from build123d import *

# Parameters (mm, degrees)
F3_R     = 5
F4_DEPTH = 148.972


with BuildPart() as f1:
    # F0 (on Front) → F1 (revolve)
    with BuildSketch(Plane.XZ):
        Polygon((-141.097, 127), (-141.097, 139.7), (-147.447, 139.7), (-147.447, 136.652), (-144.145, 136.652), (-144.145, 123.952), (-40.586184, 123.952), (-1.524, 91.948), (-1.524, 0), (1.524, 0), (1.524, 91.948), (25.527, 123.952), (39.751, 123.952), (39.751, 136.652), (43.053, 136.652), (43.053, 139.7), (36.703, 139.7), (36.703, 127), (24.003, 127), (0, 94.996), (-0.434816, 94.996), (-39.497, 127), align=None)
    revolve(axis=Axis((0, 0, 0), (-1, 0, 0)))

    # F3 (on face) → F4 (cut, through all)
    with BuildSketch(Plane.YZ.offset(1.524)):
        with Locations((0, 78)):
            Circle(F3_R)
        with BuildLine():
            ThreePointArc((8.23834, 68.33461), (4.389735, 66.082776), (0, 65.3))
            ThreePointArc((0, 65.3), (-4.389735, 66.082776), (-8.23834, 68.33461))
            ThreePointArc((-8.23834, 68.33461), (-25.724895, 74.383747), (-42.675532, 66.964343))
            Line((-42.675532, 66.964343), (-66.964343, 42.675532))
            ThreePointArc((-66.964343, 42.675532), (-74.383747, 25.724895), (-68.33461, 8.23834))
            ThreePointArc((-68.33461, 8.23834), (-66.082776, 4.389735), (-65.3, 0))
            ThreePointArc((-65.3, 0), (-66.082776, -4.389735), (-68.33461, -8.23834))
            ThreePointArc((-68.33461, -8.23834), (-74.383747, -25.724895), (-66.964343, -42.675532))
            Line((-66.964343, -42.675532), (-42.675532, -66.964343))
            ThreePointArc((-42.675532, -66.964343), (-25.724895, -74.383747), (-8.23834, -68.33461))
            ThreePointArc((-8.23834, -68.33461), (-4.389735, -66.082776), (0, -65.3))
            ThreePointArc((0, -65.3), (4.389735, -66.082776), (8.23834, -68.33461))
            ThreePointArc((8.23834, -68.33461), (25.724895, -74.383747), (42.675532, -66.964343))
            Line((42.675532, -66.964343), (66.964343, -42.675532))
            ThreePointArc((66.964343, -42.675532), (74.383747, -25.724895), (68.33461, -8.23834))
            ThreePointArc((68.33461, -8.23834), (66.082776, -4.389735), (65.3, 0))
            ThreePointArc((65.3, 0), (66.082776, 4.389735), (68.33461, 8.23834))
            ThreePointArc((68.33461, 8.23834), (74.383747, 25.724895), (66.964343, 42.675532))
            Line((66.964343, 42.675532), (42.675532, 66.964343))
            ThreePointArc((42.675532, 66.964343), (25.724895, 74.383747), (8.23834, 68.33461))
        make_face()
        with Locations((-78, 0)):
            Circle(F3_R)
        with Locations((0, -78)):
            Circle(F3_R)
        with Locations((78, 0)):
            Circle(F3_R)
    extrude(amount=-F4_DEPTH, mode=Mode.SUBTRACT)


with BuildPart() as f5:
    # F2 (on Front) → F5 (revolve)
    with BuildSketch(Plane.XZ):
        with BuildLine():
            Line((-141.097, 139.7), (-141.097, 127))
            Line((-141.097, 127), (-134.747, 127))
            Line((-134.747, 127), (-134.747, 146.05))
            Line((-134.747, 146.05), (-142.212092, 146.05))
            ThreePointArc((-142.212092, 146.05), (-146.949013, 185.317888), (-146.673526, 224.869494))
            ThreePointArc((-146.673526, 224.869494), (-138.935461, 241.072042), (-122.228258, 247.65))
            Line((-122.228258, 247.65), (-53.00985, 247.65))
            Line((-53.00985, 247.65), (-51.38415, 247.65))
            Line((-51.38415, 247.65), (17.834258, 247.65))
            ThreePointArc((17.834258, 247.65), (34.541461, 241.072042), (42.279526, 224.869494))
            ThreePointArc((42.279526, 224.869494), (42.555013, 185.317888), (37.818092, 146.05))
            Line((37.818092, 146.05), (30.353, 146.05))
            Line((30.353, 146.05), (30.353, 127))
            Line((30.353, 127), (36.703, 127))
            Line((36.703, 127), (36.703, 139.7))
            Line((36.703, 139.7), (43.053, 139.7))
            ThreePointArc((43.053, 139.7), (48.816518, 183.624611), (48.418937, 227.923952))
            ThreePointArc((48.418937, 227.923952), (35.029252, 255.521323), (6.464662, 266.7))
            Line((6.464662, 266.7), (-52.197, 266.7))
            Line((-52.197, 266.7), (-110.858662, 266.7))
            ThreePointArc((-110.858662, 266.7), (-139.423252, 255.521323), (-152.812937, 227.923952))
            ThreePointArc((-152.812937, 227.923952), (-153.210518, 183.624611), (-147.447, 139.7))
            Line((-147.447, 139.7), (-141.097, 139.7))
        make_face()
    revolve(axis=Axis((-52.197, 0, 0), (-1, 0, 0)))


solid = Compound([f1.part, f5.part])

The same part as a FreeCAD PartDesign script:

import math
import FreeCAD as App
import Part
import Sketcher

V = App.Vector
Q = App.Units.Quantity

doc = App.newDocument("Part")
body = doc.addObject("PartDesign::Body", "Body")

# Sketch on XZ plane
sketch1 = doc.addObject("Sketcher::SketchObject", "Sketch")
body.addObject(sketch1)
sketch1.AttachmentSupport = (doc.XZ_Plane, [""])
sketch1.MapMode = "FlatFace"
sketch1.addGeometry([
    Part.LineSegment(V(-141.1, 127, 0), V(-141.1, 139.7, 0)),  # 0
    Part.LineSegment(V(-141.1, 139.7, 0), V(-147.45, 139.7, 0)),  # 1
    Part.LineSegment(V(-147.45, 139.7, 0), V(-147.45, 136.65, 0)),  # 2
    Part.LineSegment(V(-147.45, 136.65, 0), V(-144.15, 136.65, 0)),  # 3
    Part.LineSegment(V(-144.15, 136.65, 0), V(-144.15, 123.95, 0)),  # 4
    Part.LineSegment(V(-144.15, 123.95, 0), V(-40.59, 123.95, 0)),  # 5
    Part.LineSegment(V(-40.59, 123.95, 0), V(-1.52, 91.95, 0)),  # 6
    Part.LineSegment(V(-1.52, 91.95, 0), V(-1.52, 0, 0)),  # 7
    Part.LineSegment(V(-1.52, 0, 0), V(1.52, 0, 0)),  # 8
    Part.LineSegment(V(1.52, 0, 0), V(1.52, 91.95, 0)),  # 9
    Part.LineSegment(V(1.52, 91.95, 0), V(25.53, 123.95, 0)),  # 10
    Part.LineSegment(V(25.53, 123.95, 0), V(39.75, 123.95, 0)),  # 11
    Part.LineSegment(V(39.75, 123.95, 0), V(39.75, 136.65, 0)),  # 12
    Part.LineSegment(V(39.75, 136.65, 0), V(43.05, 136.65, 0)),  # 13
    Part.LineSegment(V(43.05, 136.65, 0), V(43.05, 139.7, 0)),  # 14
    Part.LineSegment(V(43.05, 139.7, 0), V(36.7, 139.7, 0)),  # 15
    Part.LineSegment(V(36.7, 139.7, 0), V(36.7, 127, 0)),  # 16
    Part.LineSegment(V(36.7, 127, 0), V(24, 127, 0)),  # 17
    Part.LineSegment(V(24, 127, 0), V(0, 95, 0)),  # 18
    Part.LineSegment(V(0, 95, 0), V(-0.43, 95, 0)),  # 19
    Part.LineSegment(V(-0.43, 95, 0), V(-39.5, 127, 0)),  # 20
    Part.LineSegment(V(-39.5, 127, 0), V(-141.1, 127, 0)),  # 21
], False)
sketch1.addConstraint([
    Sketcher.Constraint("Coincident", 0, 2, 1, 1),
    Sketcher.Constraint("Coincident", 1, 2, 2, 1),
    Sketcher.Constraint("Coincident", 2, 2, 3, 1),
    Sketcher.Constraint("Coincident", 3, 2, 4, 1),
    Sketcher.Constraint("Coincident", 4, 2, 5, 1),
    Sketcher.Constraint("Coincident", 5, 2, 6, 1),
    Sketcher.Constraint("Coincident", 6, 2, 7, 1),
    Sketcher.Constraint("Coincident", 7, 2, 8, 1),
    Sketcher.Constraint("Coincident", 8, 2, 9, 1),
    Sketcher.Constraint("Coincident", 9, 2, 10, 1),
    Sketcher.Constraint("Coincident", 10, 2, 11, 1),
    Sketcher.Constraint("Coincident", 11, 2, 12, 1),
    Sketcher.Constraint("Coincident", 12, 2, 13, 1),
    Sketcher.Constraint("Coincident", 13, 2, 14, 1),
    Sketcher.Constraint("Coincident", 14, 2, 15, 1),
    Sketcher.Constraint("Coincident", 15, 2, 16, 1),
    Sketcher.Constraint("Coincident", 16, 2, 17, 1),
    Sketcher.Constraint("Coincident", 17, 2, 18, 1),
    Sketcher.Constraint("Coincident", 18, 2, 19, 1),
    Sketcher.Constraint("Coincident", 19, 2, 20, 1),
    Sketcher.Constraint("Coincident", 20, 2, 21, 1),
    Sketcher.Constraint("Coincident", 21, 2, 0, 1),
    Sketcher.Constraint("Vertical", 0),
    Sketcher.Constraint("Horizontal", 1),
    Sketcher.Constraint("Vertical", 2),
    Sketcher.Constraint("Horizontal", 3),
    Sketcher.Constraint("Vertical", 4),
    Sketcher.Constraint("Horizontal", 5),
    Sketcher.Constraint("Vertical", 7),
    Sketcher.Constraint("Horizontal", 8),
    Sketcher.Constraint("Vertical", 9),
    Sketcher.Constraint("Horizontal", 11),
    Sketcher.Constraint("Vertical", 12),
    Sketcher.Constraint("Horizontal", 13),
    Sketcher.Constraint("Vertical", 14),
    Sketcher.Constraint("Horizontal", 15),
    Sketcher.Constraint("Vertical", 16),
    Sketcher.Constraint("Horizontal", 17),
    Sketcher.Constraint("Horizontal", 19),
    Sketcher.Constraint("Horizontal", 21),
    Sketcher.Constraint("Symmetric", 7, 2, 8, 2, -1, 1),
    Sketcher.Constraint("PointOnObject", 18, 2, -2),
    Sketcher.Constraint("Parallel", 10, 18),
    Sketcher.Constraint("Parallel", 6, 20),
    Sketcher.Constraint("Horizontal", 6, 2, 9, 2),
    Sketcher.Constraint("Horizontal", 5, 2, 10, 2),
    Sketcher.Constraint("Horizontal", 3, 2, 12, 2),
    Sketcher.Constraint("Horizontal", 1, 2, 14, 2),
    Sketcher.Constraint("Horizontal", 17, 2, 20, 2),
    Sketcher.Constraint("Equal", 3, 13),
    Sketcher.Constraint("Equal", 1, 15),
    Sketcher.Constraint("Equal", 17, 0),
    Sketcher.Constraint("Equal", 8, 2),
    Sketcher.Constraint("Equal", 0, 4),
    Sketcher.Constraint("Equal", 10, 18),
    Sketcher.Constraint("DistanceX", 21, 2, 21, 1, Q("4 in")),
    Sketcher.Constraint("DistanceX", 17, 2, 17, 1, Q("0.5 in")),
    Sketcher.Constraint("DistanceY", -1, 1, 16, 2, Q("5 in")),
    Sketcher.Constraint("DistanceX", 1, 2, 1, 1, Q("0.25 in")),
    Sketcher.Constraint("DistanceX", 3, 1, 3, 2, Q("0.13 in")),
    Sketcher.Constraint("DistanceX", 8, 1, 8, 2, Q("0.12 in")),
    Sketcher.Constraint("DistanceY", 7, 2, 7, 1, Q("3.62 in")),
    Sketcher.Constraint("Distance", 10, Q("1.575 in")),
    Sketcher.Constraint("DistanceX", 0, 2, -1, 1, Q("5.555 in")),
    Sketcher.Constraint("DistanceX", 5, 1, 5, 2, 103.558816),
])
revolution = doc.addObject("PartDesign::Revolution", "Revolution")
body.addObject(revolution)
revolution.Profile = sketch1
revolution.ReferenceAxis = (sketch1, ["H_Axis"])
revolution.Angle = 360

# Sketch on YZ plane
sketch2 = doc.addObject("Sketcher::SketchObject", "Sketch001")
body.addObject(sketch2)
sketch2.AttachmentSupport = (doc.YZ_Plane, [""])
sketch2.MapMode = "FlatFace"
sketch2.AttachmentOffset = App.Placement(V(0, 0, 0.06 * 25.4), App.Rotation())
sketch2.addGeometry([
    Part.Circle(V(0, 78, 0), V(0, 0, 1), 5),  # 0
    Part.ArcOfCircle(Part.Circle(V(0, 78, 0), V(0, 0, 1), 13), math.radians(-90), math.radians(-50)),  # 1
    Part.ArcOfCircle(Part.Circle(V(0, 78, 0), V(0, 0, 1), 13), math.radians(-130), math.radians(-90)),  # 2
    Part.ArcOfCircle(Part.Circle(V(-25, 49, 0), V(0, 0, 1), 25), math.radians(50), math.radians(135)),  # 3
    Part.LineSegment(V(-43, 67, 0), V(-67, 43, 0)),  # 4
    Part.ArcOfCircle(Part.Circle(V(-49, 25, 0), V(0, 0, 1), 25), math.radians(135), math.radians(220)),  # 5
    Part.ArcOfCircle(Part.Circle(V(-78, 0, 0), V(0, 0, 1), 13), math.radians(0), math.radians(40)),  # 6
    Part.ArcOfCircle(Part.Circle(V(-78, 0, 0), V(0, 0, 1), 13), math.radians(-40), math.radians(0)),  # 7
    Part.ArcOfCircle(Part.Circle(V(-49, -25, 0), V(0, 0, 1), 25), math.radians(140), math.radians(225)),  # 8
    Part.LineSegment(V(-67, -43, 0), V(-43, -67, 0)),  # 9
    Part.ArcOfCircle(Part.Circle(V(-25, -49, 0), V(0, 0, 1), 25), math.radians(-135), math.radians(-50)),  # 10
    Part.ArcOfCircle(Part.Circle(V(0, -78, 0), V(0, 0, 1), 13), math.radians(90), math.radians(130)),  # 11
    Part.ArcOfCircle(Part.Circle(V(0, -78, 0), V(0, 0, 1), 13), math.radians(50), math.radians(90)),  # 12
    Part.ArcOfCircle(Part.Circle(V(25, -49, 0), V(0, 0, 1), 25), math.radians(-130), math.radians(-45)),  # 13
    Part.LineSegment(V(43, -67, 0), V(67, -43, 0)),  # 14
    Part.ArcOfCircle(Part.Circle(V(49, -25, 0), V(0, 0, 1), 25), math.radians(-45), math.radians(40)),  # 15
    Part.ArcOfCircle(Part.Circle(V(78, 0, 0), V(0, 0, 1), 13), math.radians(-180), math.radians(-140)),  # 16
    Part.ArcOfCircle(Part.Circle(V(78, 0, 0), V(0, 0, 1), 13), math.radians(140), math.radians(180)),  # 17
    Part.ArcOfCircle(Part.Circle(V(49, 25, 0), V(0, 0, 1), 25), math.radians(-40), math.radians(45)),  # 18
    Part.LineSegment(V(67, 43, 0), V(43, 67, 0)),  # 19
    Part.ArcOfCircle(Part.Circle(V(25, 49, 0), V(0, 0, 1), 25), math.radians(45), math.radians(130)),  # 20
    Part.Circle(V(-78, 0, 0), V(0, 0, 1), 5),  # 21
    Part.Circle(V(0, -78, 0), V(0, 0, 1), 5),  # 22
    Part.Circle(V(78, 0, 0), V(0, 0, 1), 5),  # 23
], False)
sketch2.addConstraint([
    Sketcher.Constraint("Tangent", 1, 1, 2, 2),
    Sketcher.Constraint("Tangent", 2, 1, 3, 1),
    Sketcher.Constraint("Tangent", 3, 2, 4, 1),
    Sketcher.Constraint("Tangent", 4, 2, 5, 1),
    Sketcher.Constraint("Tangent", 5, 2, 6, 2),
    Sketcher.Constraint("Tangent", 6, 1, 7, 2),
    Sketcher.Constraint("Tangent", 7, 1, 8, 1),
    Sketcher.Constraint("Tangent", 8, 2, 9, 1),
    Sketcher.Constraint("Tangent", 9, 2, 10, 1),
    Sketcher.Constraint("Tangent", 10, 2, 11, 2),
    Sketcher.Constraint("Tangent", 11, 1, 12, 2),
    Sketcher.Constraint("Tangent", 12, 1, 13, 1),
    Sketcher.Constraint("Tangent", 13, 2, 14, 1),
    Sketcher.Constraint("Tangent", 14, 2, 15, 1),
    Sketcher.Constraint("Tangent", 15, 2, 16, 2),
    Sketcher.Constraint("Tangent", 16, 1, 17, 2),
    Sketcher.Constraint("Tangent", 17, 1, 18, 1),
    Sketcher.Constraint("Tangent", 18, 2, 19, 1),
    Sketcher.Constraint("Tangent", 19, 2, 20, 1),
    Sketcher.Constraint("Tangent", 20, 2, 1, 2),
    Sketcher.Constraint("Coincident", 1, 3, 0, 3),
    Sketcher.Constraint("Coincident", 21, 3, 6, 3),
    Sketcher.Constraint("Coincident", 22, 3, 11, 3),
    Sketcher.Constraint("Coincident", 23, 3, 16, 3),
    Sketcher.Constraint("Equal", 1, 2),
    Sketcher.Constraint("Equal", 3, 5),
    Sketcher.Constraint("Equal", 2, 6),
    Sketcher.Constraint("Equal", 6, 7),
    Sketcher.Constraint("Equal", 5, 8),
    Sketcher.Constraint("Equal", 8, 10),
    Sketcher.Constraint("Equal", 7, 11),
    Sketcher.Constraint("Equal", 11, 12),
    Sketcher.Constraint("Equal", 10, 13),
    Sketcher.Constraint("Equal", 13, 15),
    Sketcher.Constraint("Equal", 12, 16),
    Sketcher.Constraint("Equal", 16, 17),
    Sketcher.Constraint("Equal", 15, 18),
    Sketcher.Constraint("Equal", 18, 20),
    Sketcher.Constraint("Equal", 0, 21),
    Sketcher.Constraint("Equal", 21, 22),
    Sketcher.Constraint("Equal", 22, 23),
    Sketcher.Constraint("Symmetric", 0, 3, 11, 3, -1, 1),
    Sketcher.Constraint("Symmetric", 5, 3, 15, 3, -1, 1),
    Sketcher.Constraint("Symmetric", 8, 3, 18, 3, -1, 1),
    Sketcher.Constraint("Symmetric", 10, 3, 13, 3, -2),
    Sketcher.Constraint("Symmetric", 8, 3, 15, 3, -2),
    Sketcher.Constraint("PointOnObject", 1, 1, -2),
    Sketcher.Constraint("PointOnObject", 6, 1, -1),
    Sketcher.Constraint("PointOnObject", 11, 1, -2),
    Sketcher.Constraint("PointOnObject", 16, 1, -1),
    Sketcher.Constraint("Perpendicular", 4, 9),
    Sketcher.Constraint("Perpendicular", 9, 14),
    Sketcher.Constraint("Perpendicular", 14, 19),
    Sketcher.Constraint("Radius", 3, Q("1 in")),
    Sketcher.Constraint("Radius", 1, Q("0.5000001 in")),
    Sketcher.Constraint("Diameter", 0, 10.0),
    Sketcher.Constraint("DistanceY", -1, 1, 0, 3, 78.0),
    Sketcher.Constraint("DistanceX", 21, 3, -1, 1, 78.0),
    Sketcher.Constraint("DistanceY", 4, 2, 3, 3, 6.328298),
])
pocket1 = doc.addObject("PartDesign::Pocket", "Pocket")
body.addObject(pocket1)
pocket1.Profile = sketch2
pocket1.Type = "ThroughAll"
body2 = doc.addObject("PartDesign::Body", "Body001")

# Sketch on XZ plane
sketch3 = doc.addObject("Sketcher::SketchObject", "Sketch002")
body2.addObject(sketch3)
sketch3.AttachmentSupport = (doc.getObject("XZ_Plane001"), [""])
sketch3.MapMode = "FlatFace"
sketch3.addGeometry([
    Part.LineSegment(V(-141, 140, 0), V(-141, 127, 0)),  # 0
    Part.LineSegment(V(-141, 127, 0), V(-135, 127, 0)),  # 1
    Part.LineSegment(V(-135, 127, 0), V(-135, 146, 0)),  # 2
    Part.LineSegment(V(-135, 146, 0), V(-142, 146, 0)),  # 3
    Part.ArcOfCircle(Part.Circle(V(164, 203, 0), V(0, 0, 1), 312), math.radians(175.96), math.radians(190.52)),  # 4
    Part.ArcOfCircle(Part.Circle(V(-122, 223, 0), V(0, 0, 1), 25), math.radians(90), math.radians(176)),  # 5
    Part.LineSegment(V(-122, 248, 0), V(18, 248, 0)),  # 6
    Part.ArcOfCircle(Part.Circle(V(18, 223, 0), V(0, 0, 1), 25), math.radians(4), math.radians(90)),  # 7
    Part.ArcOfCircle(Part.Circle(V(-269, 203, 0), V(0, 0, 1), 312), math.radians(-10.52), math.radians(4.04)),  # 8
    Part.LineSegment(V(38, 146, 0), V(30, 146, 0)),  # 9
    Part.LineSegment(V(30, 146, 0), V(30, 127, 0)),  # 10
    Part.LineSegment(V(30, 127, 0), V(37, 127, 0)),  # 11
    Part.LineSegment(V(37, 127, 0), V(37, 140, 0)),  # 12
    Part.LineSegment(V(37, 140, 0), V(43, 140, 0)),  # 13
    Part.ArcOfCircle(Part.Circle(V(-269, 203, 0), V(0, 0, 1), 318), math.radians(-11.47), math.radians(4.51)),  # 14
    Part.ArcOfCircle(Part.Circle(V(6, 225, 0), V(0, 0, 1), 42), math.radians(5), math.radians(90)),  # 15
    Part.LineSegment(V(6, 267, 0), V(-111, 267, 0)),  # 16
    Part.ArcOfCircle(Part.Circle(V(-111, 225, 0), V(0, 0, 1), 42), math.radians(90), math.radians(175)),  # 17
    Part.ArcOfCircle(Part.Circle(V(164, 203, 0), V(0, 0, 1), 318), math.radians(175.49), math.radians(191.47)),  # 18
    Part.LineSegment(V(-147, 140, 0), V(-141, 140, 0)),  # 19
], False)
sketch3.addConstraint([
    Sketcher.Constraint("Coincident", 0, 2, 1, 1),
    Sketcher.Constraint("Coincident", 1, 2, 2, 1),
    Sketcher.Constraint("Coincident", 2, 2, 3, 1),
    Sketcher.Constraint("Coincident", 3, 2, 4, 2),
    Sketcher.Constraint("Tangent", 4, 1, 5, 2),
    Sketcher.Constraint("Tangent", 5, 1, 6, 1),
    Sketcher.Constraint("Tangent", 6, 2, 7, 2),
    Sketcher.Constraint("Tangent", 7, 1, 8, 2),
    Sketcher.Constraint("Coincident", 8, 1, 9, 1),
    Sketcher.Constraint("Coincident", 9, 2, 10, 1),
    Sketcher.Constraint("Coincident", 10, 2, 11, 1),
    Sketcher.Constraint("Coincident", 11, 2, 12, 1),
    Sketcher.Constraint("Coincident", 12, 2, 13, 1),
    Sketcher.Constraint("Coincident", 13, 2, 14, 1),
    Sketcher.Constraint("Tangent", 14, 2, 15, 1),
    Sketcher.Constraint("Tangent", 15, 2, 16, 1),
    Sketcher.Constraint("Tangent", 16, 2, 17, 1),
    Sketcher.Constraint("Tangent", 17, 2, 18, 1),
    Sketcher.Constraint("Coincident", 18, 2, 19, 1),
    Sketcher.Constraint("Coincident", 19, 2, 0, 1),
    Sketcher.Constraint("Vertical", 0),
    Sketcher.Constraint("Horizontal", 1),
    Sketcher.Constraint("Vertical", 2),
    Sketcher.Constraint("Horizontal", 3),
    Sketcher.Constraint("Horizontal", 6),
    Sketcher.Constraint("Horizontal", 9),
    Sketcher.Constraint("Vertical", 10),
    Sketcher.Constraint("Horizontal", 11),
    Sketcher.Constraint("Vertical", 12),
    Sketcher.Constraint("Horizontal", 13),
    Sketcher.Constraint("Horizontal", 16),
    Sketcher.Constraint("Horizontal", 19),
    Sketcher.Constraint("Equal", 5, 7),
    Sketcher.Constraint("Equal", 4, 8),
    Sketcher.Constraint("Equal", 15, 17),
    Sketcher.Constraint("Equal", 14, 18),
    Sketcher.Constraint("Horizontal", 4, 3, 8, 3),
    Sketcher.Constraint("Horizontal", 14, 3, 18, 3),
    Sketcher.Constraint("Horizontal", 3, 2, 8, 1),
    Sketcher.Constraint("Horizontal", 1, 2, 10, 2),
    Sketcher.Constraint("Horizontal", 13, 2, 18, 2),
    Sketcher.Constraint("Equal", 3, 9),
    Sketcher.Constraint("Equal", 1, 11),
    Sketcher.Constraint("Equal", 11, 13),
    Sketcher.Constraint("Equal", 13, 19),
    Sketcher.Constraint("DistanceY", 0, 2, 0, 1, Q("0.5 in")),
    Sketcher.Constraint("DistanceY", -1, 1, 0, 2, Q("5 in")),
    Sketcher.Constraint("DistanceY", 2, 2, 5, 1, Q("4 in")),
    Sketcher.Constraint("DistanceX", 1, 1, 1, 2, Q("0.25 in")),
    Sketcher.Constraint("DistanceY", 2, 1, 2, 2, Q("0.75 in")),
    Sketcher.Constraint("DistanceY", -1, 1, 15, 2, Q("10.5 in")),
    Sketcher.Constraint("DistanceX", 0, 2, -1, 1, Q("5.555 in")),
    Sketcher.Constraint("DistanceX", -1, 1, 9, 2, Q("1.195 in")),
    Sketcher.Constraint("Radius", 4, 311.607781),
    Sketcher.Constraint("Radius", 5, 24.506097),
    Sketcher.Constraint("Radius", 14, 317.957813),
    Sketcher.Constraint("Radius", 15, 42.084524),
    Sketcher.Constraint("DistanceX", 3, 2, 3, 1, 7.465092),
    Sketcher.Constraint("DistanceX", 6, 1, 6, 2, 140.062516),
    Sketcher.Constraint("DistanceX", 16, 2, 16, 1, 117.323324),
])
revolution2 = doc.addObject("PartDesign::Revolution", "Revolution001")
body2.addObject(revolution2)
revolution2.Profile = sketch3
revolution2.ReferenceAxis = (sketch3, ["H_Axis"])
revolution2.Angle = 360

doc.recompute()
